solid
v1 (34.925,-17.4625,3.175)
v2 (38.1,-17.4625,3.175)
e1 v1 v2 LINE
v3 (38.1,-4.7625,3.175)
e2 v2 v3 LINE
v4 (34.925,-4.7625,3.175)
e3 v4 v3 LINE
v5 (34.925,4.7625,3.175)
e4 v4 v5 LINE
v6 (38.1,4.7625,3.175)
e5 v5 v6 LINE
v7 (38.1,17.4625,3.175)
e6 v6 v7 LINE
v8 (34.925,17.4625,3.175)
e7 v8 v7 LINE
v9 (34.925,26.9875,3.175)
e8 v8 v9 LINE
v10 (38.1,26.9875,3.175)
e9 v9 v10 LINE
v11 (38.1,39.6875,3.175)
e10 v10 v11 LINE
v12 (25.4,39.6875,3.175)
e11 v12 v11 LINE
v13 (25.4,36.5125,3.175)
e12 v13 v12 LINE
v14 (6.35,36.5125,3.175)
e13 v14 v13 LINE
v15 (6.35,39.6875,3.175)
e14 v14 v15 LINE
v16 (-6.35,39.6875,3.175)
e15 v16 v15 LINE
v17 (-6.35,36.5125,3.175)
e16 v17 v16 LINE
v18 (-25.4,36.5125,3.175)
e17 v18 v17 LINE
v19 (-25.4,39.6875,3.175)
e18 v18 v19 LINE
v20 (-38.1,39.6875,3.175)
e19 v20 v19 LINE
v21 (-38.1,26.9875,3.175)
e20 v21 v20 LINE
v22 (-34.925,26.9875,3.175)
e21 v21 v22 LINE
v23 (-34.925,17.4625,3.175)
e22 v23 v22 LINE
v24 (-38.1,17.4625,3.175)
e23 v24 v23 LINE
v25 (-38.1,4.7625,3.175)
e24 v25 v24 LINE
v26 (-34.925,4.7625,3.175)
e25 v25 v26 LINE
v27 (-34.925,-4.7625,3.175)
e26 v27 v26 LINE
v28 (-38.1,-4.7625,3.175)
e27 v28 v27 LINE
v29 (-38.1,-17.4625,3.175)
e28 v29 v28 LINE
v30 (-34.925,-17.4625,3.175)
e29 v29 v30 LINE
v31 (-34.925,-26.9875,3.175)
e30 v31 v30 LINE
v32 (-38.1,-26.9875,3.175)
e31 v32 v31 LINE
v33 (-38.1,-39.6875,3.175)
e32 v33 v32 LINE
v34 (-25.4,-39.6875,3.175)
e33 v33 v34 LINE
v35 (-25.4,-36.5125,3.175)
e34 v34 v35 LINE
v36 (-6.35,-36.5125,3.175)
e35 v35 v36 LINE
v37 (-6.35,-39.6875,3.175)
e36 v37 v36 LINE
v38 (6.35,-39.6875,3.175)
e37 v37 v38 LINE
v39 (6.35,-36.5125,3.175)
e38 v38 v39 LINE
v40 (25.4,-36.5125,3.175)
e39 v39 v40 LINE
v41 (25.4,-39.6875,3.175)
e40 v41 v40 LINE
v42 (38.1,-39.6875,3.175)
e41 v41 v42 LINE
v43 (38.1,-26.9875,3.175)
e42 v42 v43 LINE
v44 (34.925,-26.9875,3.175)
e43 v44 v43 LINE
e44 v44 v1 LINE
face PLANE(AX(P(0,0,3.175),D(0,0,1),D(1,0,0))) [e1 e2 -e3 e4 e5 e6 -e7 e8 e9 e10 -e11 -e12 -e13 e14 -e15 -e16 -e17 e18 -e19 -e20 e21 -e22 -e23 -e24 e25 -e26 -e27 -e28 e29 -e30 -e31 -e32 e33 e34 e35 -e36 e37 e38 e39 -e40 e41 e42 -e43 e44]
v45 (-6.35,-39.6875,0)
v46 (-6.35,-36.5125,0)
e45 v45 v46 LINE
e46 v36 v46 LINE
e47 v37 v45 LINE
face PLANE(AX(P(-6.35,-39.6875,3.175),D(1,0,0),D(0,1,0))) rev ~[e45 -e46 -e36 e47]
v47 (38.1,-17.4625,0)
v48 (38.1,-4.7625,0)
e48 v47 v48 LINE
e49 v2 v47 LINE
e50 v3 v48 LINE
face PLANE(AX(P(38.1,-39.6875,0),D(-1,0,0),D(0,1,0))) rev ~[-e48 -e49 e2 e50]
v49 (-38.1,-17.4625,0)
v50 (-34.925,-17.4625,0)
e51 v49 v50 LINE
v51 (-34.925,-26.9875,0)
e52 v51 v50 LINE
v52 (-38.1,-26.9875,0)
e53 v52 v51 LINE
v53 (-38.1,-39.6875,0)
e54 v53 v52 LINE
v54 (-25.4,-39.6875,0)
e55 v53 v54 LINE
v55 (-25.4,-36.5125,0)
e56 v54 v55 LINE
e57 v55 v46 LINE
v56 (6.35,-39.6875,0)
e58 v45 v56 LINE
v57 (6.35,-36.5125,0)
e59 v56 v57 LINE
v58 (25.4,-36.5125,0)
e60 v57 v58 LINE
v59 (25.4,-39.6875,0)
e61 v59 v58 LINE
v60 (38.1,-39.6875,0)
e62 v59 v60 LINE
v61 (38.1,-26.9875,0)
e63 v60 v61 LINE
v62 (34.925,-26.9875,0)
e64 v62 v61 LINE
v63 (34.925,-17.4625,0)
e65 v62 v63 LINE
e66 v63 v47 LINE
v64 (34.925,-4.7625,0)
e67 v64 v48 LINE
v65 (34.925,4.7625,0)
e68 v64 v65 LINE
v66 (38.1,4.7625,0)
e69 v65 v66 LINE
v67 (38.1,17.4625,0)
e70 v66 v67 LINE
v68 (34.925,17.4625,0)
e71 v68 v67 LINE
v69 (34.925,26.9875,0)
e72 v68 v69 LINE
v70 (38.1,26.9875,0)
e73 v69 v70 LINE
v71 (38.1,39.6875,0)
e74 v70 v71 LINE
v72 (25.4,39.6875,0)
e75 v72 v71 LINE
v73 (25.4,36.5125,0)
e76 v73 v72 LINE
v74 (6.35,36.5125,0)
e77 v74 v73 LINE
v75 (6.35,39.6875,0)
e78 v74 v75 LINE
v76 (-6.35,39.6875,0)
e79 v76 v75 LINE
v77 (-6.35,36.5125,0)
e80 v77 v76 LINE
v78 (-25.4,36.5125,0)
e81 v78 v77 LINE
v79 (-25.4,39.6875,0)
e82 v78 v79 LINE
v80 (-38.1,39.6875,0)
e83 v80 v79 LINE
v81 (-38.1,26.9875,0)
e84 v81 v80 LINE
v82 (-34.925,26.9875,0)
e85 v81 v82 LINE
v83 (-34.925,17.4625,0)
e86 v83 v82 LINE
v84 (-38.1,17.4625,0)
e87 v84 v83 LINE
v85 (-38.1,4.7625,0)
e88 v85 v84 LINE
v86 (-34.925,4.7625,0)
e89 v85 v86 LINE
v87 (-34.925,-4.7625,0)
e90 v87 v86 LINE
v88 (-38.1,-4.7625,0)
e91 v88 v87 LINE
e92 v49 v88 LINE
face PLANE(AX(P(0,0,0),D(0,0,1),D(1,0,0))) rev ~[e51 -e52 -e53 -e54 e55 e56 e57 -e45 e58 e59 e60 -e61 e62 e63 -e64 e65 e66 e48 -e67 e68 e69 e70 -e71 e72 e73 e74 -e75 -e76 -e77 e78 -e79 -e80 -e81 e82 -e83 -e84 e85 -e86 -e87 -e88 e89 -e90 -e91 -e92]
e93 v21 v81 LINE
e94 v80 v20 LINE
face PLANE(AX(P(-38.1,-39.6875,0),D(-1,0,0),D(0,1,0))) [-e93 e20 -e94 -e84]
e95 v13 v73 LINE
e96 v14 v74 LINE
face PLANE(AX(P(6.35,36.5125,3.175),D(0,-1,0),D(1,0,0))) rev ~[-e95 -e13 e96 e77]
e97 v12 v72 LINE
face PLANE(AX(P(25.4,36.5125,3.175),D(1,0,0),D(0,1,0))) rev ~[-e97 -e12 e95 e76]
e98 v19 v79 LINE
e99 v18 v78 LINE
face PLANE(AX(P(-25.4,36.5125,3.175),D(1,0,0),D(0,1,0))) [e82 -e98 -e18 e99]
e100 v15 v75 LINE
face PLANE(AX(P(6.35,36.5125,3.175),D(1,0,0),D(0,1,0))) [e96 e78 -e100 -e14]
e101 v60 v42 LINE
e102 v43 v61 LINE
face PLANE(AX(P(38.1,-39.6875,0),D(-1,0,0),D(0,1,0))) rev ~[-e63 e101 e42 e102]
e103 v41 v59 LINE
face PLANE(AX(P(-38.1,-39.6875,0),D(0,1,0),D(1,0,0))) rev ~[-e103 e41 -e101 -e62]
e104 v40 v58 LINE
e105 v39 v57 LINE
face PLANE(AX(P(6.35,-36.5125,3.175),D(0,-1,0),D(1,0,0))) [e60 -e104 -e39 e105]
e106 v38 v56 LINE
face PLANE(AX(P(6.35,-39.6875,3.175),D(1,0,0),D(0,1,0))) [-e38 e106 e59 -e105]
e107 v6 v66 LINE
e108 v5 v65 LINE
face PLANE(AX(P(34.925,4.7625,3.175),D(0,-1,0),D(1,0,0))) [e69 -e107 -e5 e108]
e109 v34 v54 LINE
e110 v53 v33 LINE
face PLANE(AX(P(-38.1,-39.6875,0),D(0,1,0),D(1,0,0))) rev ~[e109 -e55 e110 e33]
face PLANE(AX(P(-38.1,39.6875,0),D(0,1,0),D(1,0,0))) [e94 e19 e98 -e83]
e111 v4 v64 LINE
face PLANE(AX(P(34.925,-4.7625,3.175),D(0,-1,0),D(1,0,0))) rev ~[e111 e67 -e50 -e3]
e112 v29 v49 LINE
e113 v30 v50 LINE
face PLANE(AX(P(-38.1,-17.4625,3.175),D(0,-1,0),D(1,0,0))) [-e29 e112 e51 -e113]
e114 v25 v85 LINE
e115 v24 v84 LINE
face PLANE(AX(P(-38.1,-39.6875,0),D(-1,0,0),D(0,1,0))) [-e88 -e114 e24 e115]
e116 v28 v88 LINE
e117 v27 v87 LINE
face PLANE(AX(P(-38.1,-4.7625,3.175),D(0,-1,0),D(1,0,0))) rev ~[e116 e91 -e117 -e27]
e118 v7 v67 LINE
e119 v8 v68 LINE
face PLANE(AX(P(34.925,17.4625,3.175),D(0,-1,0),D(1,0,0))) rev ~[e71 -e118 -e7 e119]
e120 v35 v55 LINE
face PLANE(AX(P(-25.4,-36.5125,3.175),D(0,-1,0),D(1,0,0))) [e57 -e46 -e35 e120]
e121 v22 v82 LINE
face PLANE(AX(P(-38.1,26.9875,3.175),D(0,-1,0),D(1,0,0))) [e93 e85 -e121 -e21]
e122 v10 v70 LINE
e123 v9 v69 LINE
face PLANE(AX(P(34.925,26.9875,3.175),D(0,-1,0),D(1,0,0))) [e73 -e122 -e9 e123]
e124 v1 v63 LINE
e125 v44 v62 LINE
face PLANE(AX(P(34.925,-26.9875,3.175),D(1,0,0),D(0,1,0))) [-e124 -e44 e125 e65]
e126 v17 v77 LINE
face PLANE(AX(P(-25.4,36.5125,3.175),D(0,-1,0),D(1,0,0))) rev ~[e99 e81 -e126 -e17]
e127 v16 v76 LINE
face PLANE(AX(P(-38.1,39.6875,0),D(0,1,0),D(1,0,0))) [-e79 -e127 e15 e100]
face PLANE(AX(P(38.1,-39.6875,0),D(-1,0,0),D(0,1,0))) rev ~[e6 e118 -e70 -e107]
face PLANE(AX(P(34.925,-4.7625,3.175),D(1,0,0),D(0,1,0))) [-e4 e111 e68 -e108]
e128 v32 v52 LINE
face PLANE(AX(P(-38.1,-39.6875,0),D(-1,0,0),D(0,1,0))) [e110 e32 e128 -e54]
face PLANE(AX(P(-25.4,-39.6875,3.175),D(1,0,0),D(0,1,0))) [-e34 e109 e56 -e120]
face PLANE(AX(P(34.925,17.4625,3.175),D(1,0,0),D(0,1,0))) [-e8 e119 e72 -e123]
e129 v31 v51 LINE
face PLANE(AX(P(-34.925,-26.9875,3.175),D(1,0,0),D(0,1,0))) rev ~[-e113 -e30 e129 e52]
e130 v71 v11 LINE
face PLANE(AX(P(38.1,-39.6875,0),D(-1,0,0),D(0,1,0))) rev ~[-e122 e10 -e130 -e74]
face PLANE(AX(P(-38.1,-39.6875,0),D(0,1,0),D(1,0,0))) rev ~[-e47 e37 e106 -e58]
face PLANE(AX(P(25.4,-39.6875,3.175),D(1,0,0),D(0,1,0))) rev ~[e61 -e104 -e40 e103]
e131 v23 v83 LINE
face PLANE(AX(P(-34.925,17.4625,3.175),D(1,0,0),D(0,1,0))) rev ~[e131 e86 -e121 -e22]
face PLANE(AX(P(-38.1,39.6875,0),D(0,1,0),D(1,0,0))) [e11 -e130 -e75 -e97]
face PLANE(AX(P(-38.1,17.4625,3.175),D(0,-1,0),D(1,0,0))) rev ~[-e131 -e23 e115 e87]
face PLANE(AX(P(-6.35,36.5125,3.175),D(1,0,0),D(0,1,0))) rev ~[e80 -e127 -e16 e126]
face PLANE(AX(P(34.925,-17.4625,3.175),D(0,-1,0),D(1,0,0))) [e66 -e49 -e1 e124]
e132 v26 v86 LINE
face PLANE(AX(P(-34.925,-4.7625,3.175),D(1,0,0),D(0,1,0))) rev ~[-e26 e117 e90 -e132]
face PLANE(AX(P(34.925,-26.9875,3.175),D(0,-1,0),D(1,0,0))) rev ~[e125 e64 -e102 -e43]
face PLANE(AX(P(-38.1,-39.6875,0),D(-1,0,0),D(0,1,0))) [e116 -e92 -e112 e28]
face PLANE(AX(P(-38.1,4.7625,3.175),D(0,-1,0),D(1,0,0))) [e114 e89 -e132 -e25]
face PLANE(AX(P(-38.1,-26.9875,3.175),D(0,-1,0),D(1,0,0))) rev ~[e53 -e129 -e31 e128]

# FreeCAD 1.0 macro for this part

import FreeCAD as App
import Part
import Sketcher

V = App.Vector
Q = App.Units.Quantity


def add_polygon(sketch, points):
    """Adds a closed chain of lines whose ends are joined by coincident constraints."""
    first, n = sketch.GeometryCount, len(points)
    for a, b in zip(points, points[1:] + points[:1]):
        sketch.addGeometry(Part.LineSegment(App.Vector(*a, 0), App.Vector(*b, 0)), False)
    for i in range(n):
        sketch.addConstraint(Sketcher.Constraint("Coincident", first + i, 2, first + (i + 1) % n, 1))

doc = App.newDocument("Part")
params = doc.addObject("Spreadsheet::Sheet", "Params")
for row, (alias, value) in enumerate([
    ("sketch1_width", "3 in"),
    ("sketch1_height", "3.125 in"),
    ("pad1_length", "0.125 in"),
    ("sketch2_width", "0.75 in"),
    ("sketch2_height", "0.125 in"),
    ("sketch3_width", "0.125 in"),
    ("sketch3_height", "0.375 in"),
], start=1):
    params.set(f"A{row}", alias)
    params.set(f"B{row}", "=" + value)
    params.setAlias(f"B{row}", alias)

body = doc.addObject("PartDesign::Body", "Body")

# Sketch on XY plane
sketch1 = doc.addObject("Sketcher::SketchObject", "Sketch")
body.addObject(sketch1)
sketch1.AttachmentSupport = (doc.XY_Plane, [""])
sketch1.MapMode = "FlatFace"
add_polygon(sketch1, [(-38.1, 39.6875), (-38.1, -39.6875), (38.1, -39.6875), (38.1, 39.6875)])  # lines 0-3
sketch1.addConstraint([
    Sketcher.Constraint("Vertical", 0),
    Sketcher.Constraint("Horizontal", 1),
    Sketcher.Constraint("Vertical", 2),
    Sketcher.Constraint("Horizontal", 3),
    Sketcher.Constraint("Symmetric", 0, 2, 2, 2, -1, 1),
    Sketcher.Constraint("DistanceX", 1, 1, 1, 2, Q("3 in")),
    Sketcher.Constraint("DistanceY", 0, 2, 0, 1, Q("3.125 in")),
])
sketch1.setExpression("Constraints[9]", "Params.sketch1_width")
sketch1.setExpression("Constraints[10]", "Params.sketch1_height")
pad1 = doc.addObject("PartDesign::Pad", "Pad")
body.addObject(pad1)
pad1.Profile = sketch1
pad1.setExpression("Length", "Params.pad1_length")

# Sketch on XY plane
sketch2 = doc.addObject("Sketcher::SketchObject", "Sketch001")
body.addObject(sketch2)
sketch2.AttachmentSupport = (doc.XY_Plane, [""])
sketch2.MapMode = "FlatFace"
sketch2.AttachmentOffset = App.Placement(V(0, 0, 0.125 * 25.4), App.Rotation())
add_polygon(sketch2, [(-25.4, 39.6875), (-25.4, 36.5125), (-6.35, 36.5125), (-6.35, 39.6875)])  # lines 0-3
add_polygon(sketch2, [(6.35, 39.6875), (6.35, 36.5125), (25.4, 36.5125), (25.4, 39.6875)])  # lines 4-7
add_polygon(sketch2, [(6.35, -36.5125), (6.35, -39.6875), (25.4, -39.6875), (25.4, -36.5125)])  # lines 8-11
add_polygon(sketch2, [(-25.4, -36.5125), (-25.4, -39.6875), (-6.35, -39.6875), (-6.35, -36.5125)])  # lines 12-15
sketch2.addConstraint([
    Sketcher.Constraint("Vertical", 0),
    Sketcher.Constraint("Horizontal", 1),
    Sketcher.Constraint("Vertical", 2),
    Sketcher.Constraint("Horizontal", 3),
    Sketcher.Constraint("Vertical", 4),
    Sketcher.Constraint("Horizontal", 5),
    Sketcher.Constraint("Vertical", 6),
    Sketcher.Constraint("Horizontal", 7),
    Sketcher.Constraint("Vertical", 8),
    Sketcher.Constraint("Horizontal", 9),
    Sketcher.Constraint("Vertical", 10),
    Sketcher.Constraint("Horizontal", 11),
    Sketcher.Constraint("Vertical", 12),
    Sketcher.Constraint("Horizontal", 13),
    Sketcher.Constraint("Vertical", 14),
    Sketcher.Constraint("Horizontal", 15),
    Sketcher.Constraint("Symmetric", 2, 2, 8, 2, -1, 1),
    Sketcher.Constraint("Symmetric", 0, 2, 10, 2, -1, 1),
    Sketcher.Constraint("Symmetric", 6, 2, 12, 2, -1, 1),
    Sketcher.Constraint("Symmetric", 4, 2, 14, 2, -1, 1),
    Sketcher.Constraint("Symmetric", 1, 2, 4, 2, -2),
    Sketcher.Constraint("Symmetric", 3, 2, 6, 2, -2),
    Sketcher.Constraint("DistanceX", 0, 2, -1, 1, Q("1 in")),
    Sketcher.Constraint("DistanceY", 8, 2, 4, 2, Q("3 in")),
    Sketcher.Constraint("DistanceX", 1, 1, 1, 2, Q("0.75 in")),
    Sketcher.Constraint("DistanceY", 0, 2, 0, 1, Q("0.125 in")),
])
sketch2.setExpression("Constraints[40]", "Params.sketch2_width")
sketch2.setExpression("Constraints[41]", "Params.sketch2_height")
pocket1 = doc.addObject("PartDesign::Pocket", "Pocket")
body.addObject(pocket1)
pocket1.Profile = sketch2
pocket1.Type = "ThroughAll"

# Sketch on XY plane
sketch3 = doc.addObject("Sketcher::SketchObject", "Sketch002")
body.addObject(sketch3)
sketch3.AttachmentSupport = (doc.XY_Plane, [""])
sketch3.MapMode = "FlatFace"
sketch3.AttachmentOffset = App.Placement(V(0, 0, 0.125 * 25.4), App.Rotation())
add_polygon(sketch3, [(-38.1, 26.9875), (-38.1, 17.4625), (-34.925, 17.4625), (-34.925, 26.9875)])  # lines 0-3
add_polygon(sketch3, [(-38.1, 4.7625), (-38.1, -4.7625), (-34.925, -4.7625), (-34.925, 4.7625)])  # lines 4-7
add_polygon(sketch3, [(-38.1, -17.4625), (-38.1, -26.9875), (-34.925, -26.9875), (-34.925, -17.4625)])  # lines 8-11
add_polygon(sketch3, [(34.925, -17.4625), (34.925, -26.9875), (38.1, -26.9875), (38.1, -17.4625)])  # lines 12-15
add_polygon(sketch3, [(34.925, 4.7625), (34.925, -4.7625), (38.1, -4.7625), (38.1, 4.7625)])  # lines 16-19
add_polygon(sketch3, [(34.925, 26.9875), (34.925, 17.4625), (38.1, 17.4625), (38.1, 26.9875)])  # lines 20-23
sketch3.addConstraint([
    Sketcher.Constraint("Vertical", 0),
    Sketcher.Constraint("Horizontal", 1),
    Sketcher.Constraint("Vertical", 2),
    Sketcher.Constraint("Horizontal", 3),
    Sketcher.Constraint("Vertical", 4),
    Sketcher.Constraint("Horizontal", 5),
    Sketcher.Constraint("Vertical", 6),
    Sketcher.Constraint("Horizontal", 7),
    Sketcher.Constraint("Vertical", 8),
    Sketcher.Constraint("Horizontal", 9),
    Sketcher.Constraint("Vertical", 10),
    Sketcher.Constraint("Horizontal", 11),
    Sketcher.Constraint("Vertical", 12),
    Sketcher.Constraint("Horizontal", 13),
    Sketcher.Constraint("Vertical", 14),
    Sketcher.Constraint("Horizontal", 15),
    Sketcher.Constraint("Vertical", 16),
    Sketcher.Constraint("Horizontal", 17),
    Sketcher.Constraint("Vertical", 18),
    Sketcher.Constraint("Horizontal", 19),
    Sketcher.Constraint("Vertical", 20),
    Sketcher.Constraint("Horizontal", 21),
    Sketcher.Constraint("Vertical", 22),
    Sketcher.Constraint("Horizontal", 23),
    Sketcher.Constraint("Symmetric", 2, 2, 12, 2, -1, 1),
    Sketcher.Constraint("Symmetric", 0, 2, 14, 2, -1, 1),
    Sketcher.Constraint("Symmetric", 6, 2, 16, 2, -1, 1),
    Sketcher.Constraint("Symmetric", 4, 2, 18, 2, -1, 1),
    Sketcher.Constraint("Symmetric", 10, 2, 20, 2, -1, 1),
    Sketcher.Constraint("Symmetric", 8, 2, 22, 2, -1, 1),
    Sketcher.Constraint("Symmetric", 9, 2, 12, 2, -2),
    Sketcher.Constraint("Symmetric", 11, 2, 14, 2, -2),
    Sketcher.Constraint("Horizontal", 5, 2, 16, 2),
    Sketcher.Constraint("Vertical", 3, 2, 4, 2),
    Sketcher.Constraint("Vertical", 2, 2, 5, 2),
    Sketcher.Constraint("Equal", 2, 4),
    Sketcher.Constraint("DistanceX", 8, 2, 13, 2, Q("3 in")),
    Sketcher.Constraint("DistanceY", 6, 2, 1, 2, Q("0.5 in")),
    Sketcher.Constraint("DistanceX", 1, 1, 1, 2, Q("0.125 in")),
    Sketcher.Constraint("DistanceY", 0, 2, 0, 1, Q("0.375 in")),
])
sketch3.setExpression("Constraints[62]", "Params.sketch3_width")
sketch3.setExpression("Constraints[63]", "Params.sketch3_height")
pocket2 = doc.addObject("PartDesign::Pocket", "Pocket001")
body.addObject(pocket2)
pocket2.Profile = sketch3
pocket2.Type = "ThroughAll"

doc.recompute()
